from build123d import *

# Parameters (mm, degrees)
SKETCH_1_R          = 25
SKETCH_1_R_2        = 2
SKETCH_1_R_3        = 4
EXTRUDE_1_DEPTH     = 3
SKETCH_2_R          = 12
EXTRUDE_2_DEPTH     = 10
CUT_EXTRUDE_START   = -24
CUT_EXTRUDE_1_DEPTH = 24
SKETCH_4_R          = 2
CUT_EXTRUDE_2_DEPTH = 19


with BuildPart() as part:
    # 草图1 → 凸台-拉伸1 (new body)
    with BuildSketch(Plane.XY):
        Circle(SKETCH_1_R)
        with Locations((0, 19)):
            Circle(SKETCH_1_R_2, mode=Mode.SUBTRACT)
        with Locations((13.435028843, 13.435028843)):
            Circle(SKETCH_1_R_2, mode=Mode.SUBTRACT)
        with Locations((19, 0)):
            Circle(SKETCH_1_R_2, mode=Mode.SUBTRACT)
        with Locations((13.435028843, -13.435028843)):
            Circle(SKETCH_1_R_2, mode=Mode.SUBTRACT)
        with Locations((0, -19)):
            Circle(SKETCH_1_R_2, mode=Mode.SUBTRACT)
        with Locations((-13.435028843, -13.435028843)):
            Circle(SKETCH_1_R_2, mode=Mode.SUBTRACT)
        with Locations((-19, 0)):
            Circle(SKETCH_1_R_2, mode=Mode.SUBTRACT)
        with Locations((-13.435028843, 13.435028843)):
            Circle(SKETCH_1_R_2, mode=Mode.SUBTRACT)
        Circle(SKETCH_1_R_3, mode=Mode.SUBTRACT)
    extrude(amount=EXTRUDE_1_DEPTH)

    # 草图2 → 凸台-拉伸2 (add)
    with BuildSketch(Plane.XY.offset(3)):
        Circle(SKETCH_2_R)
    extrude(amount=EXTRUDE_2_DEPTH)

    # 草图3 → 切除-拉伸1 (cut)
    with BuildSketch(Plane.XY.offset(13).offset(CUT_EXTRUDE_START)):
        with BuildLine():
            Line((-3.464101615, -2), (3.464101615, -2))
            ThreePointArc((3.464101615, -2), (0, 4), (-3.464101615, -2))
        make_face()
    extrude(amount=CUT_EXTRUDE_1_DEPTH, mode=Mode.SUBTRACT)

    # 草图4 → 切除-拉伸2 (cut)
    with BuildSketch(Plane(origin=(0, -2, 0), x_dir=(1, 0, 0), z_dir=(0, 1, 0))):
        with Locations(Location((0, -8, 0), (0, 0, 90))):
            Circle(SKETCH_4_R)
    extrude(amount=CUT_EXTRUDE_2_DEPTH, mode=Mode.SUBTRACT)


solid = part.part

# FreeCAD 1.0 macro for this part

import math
import FreeCAD as App
import Part
import Sketcher

V = App.Vector

doc = App.newDocument("Part")
body = doc.addObject("PartDesign::Body", "Body")

sketch1 = body.newObject("Sketcher::SketchObject", "Sketch")
sketch1.AttachmentSupport = (doc.getObject("XY_Plane"), [""])
sketch1.MapMode = "FlatFace"
sketch1.addGeometry([
    Part.Circle(V(0, 0, 0), V(0, 0, 1), 25),
    Part.Circle(V(-13.4, -13.4, 0), V(0, 0, 1), 2),
    Part.Circle(V(0, -19, 0), V(0, 0, 1), 2),
    Part.Circle(V(13.4, -13.4, 0), V(0, 0, 1), 2),
    Part.Circle(V(-19, 0, 0), V(0, 0, 1), 2),
    Part.Circle(V(-13.4, 13.4, 0), V(0, 0, 1), 2),
    Part.Circle(V(0, 0, 0), V(0, 0, 1), 4),
    Part.Circle(V(19, 0, 0), V(0, 0, 1), 2),
    Part.Circle(V(0, 19, 0), V(0, 0, 1), 2),
    Part.Circle(V(13.4, 13.4, 0), V(0, 0, 1), 2),
], False)
sketch1.addConstraint([
    Sketcher.Constraint("Coincident", 0, 3, -1, 1),
    Sketcher.Constraint("Coincident", 6, 3, -1, 1),
    Sketcher.Constraint("Equal", 1, 2),
    Sketcher.Constraint("Equal", 2, 3),
    Sketcher.Constraint("Equal", 3, 4),
    Sketcher.Constraint("Equal", 4, 5),
    Sketcher.Constraint("Equal", 5, 7),
    Sketcher.Constraint("Equal", 7, 8),
    Sketcher.Constraint("Equal", 8, 9),
    Sketcher.Constraint("Symmetric", 3, 3, 5, 3, -1, 1),
    Sketcher.Constraint("Symmetric", 4, 3, 7, 3, -1, 1),
    Sketcher.Constraint("Symmetric", 2, 3, 8, 3, -1, 1),
    Sketcher.Constraint("Symmetric", 1, 3, 9, 3, -1, 1),
    Sketcher.Constraint("Symmetric", 1, 3, 3, 3, -2),
    Sketcher.Constraint("PointOnObject", 2, 3, -2),
    Sketcher.Constraint("PointOnObject", 4, 3, -1),
    Sketcher.Constraint("Diameter", 0, 50.0),
    Sketcher.Constraint("Diameter", 1, 4.0),
    Sketcher.Constraint("Diameter", 6, 8.0),
    Sketcher.Constraint("DistanceY", 2, 3, -1, 1, 19.0),
    Sketcher.Constraint("DistanceX", 4, 3, -1, 1, 19.0),
    Sketcher.Constraint("DistanceX", 1, 3, -1, 1, 13.435029),
    Sketcher.Constraint("DistanceY", 1, 3, -1, 1, 13.435029),
])
pad1 = body.newObject("PartDesign::Pad", "Pad")
pad1.Profile = sketch1
pad1.Length = 3

sketch2 = body.newObject("Sketcher::SketchObject", "Sketch001")
sketch2.AttachmentSupport = (doc.getObject("XY_Plane"), [""])
sketch2.MapMode = "FlatFace"
sketch2.AttachmentOffset = App.Placement(V(0, 0, 3), App.Rotation())
sketch2.addGeometry(Part.Circle(V(0, 0, 0), V(0, 0, 1), 12), False)
sketch2.addConstraint([
    Sketcher.Constraint("Coincident", 0, 3, -1, 1),
    Sketcher.Constraint("Diameter", 0, 24.0),
])
pad2 = body.newObject("PartDesign::Pad", "Pad001")
pad2.Profile = sketch2
pad2.Length = 10

sketch3 = body.newObject("Sketcher::SketchObject", "Sketch002")
sketch3.AttachmentSupport = (doc.getObject("XY_Plane"), [""])
sketch3.MapMode = "FlatFace"
sketch3.AttachmentOffset = App.Placement(V(0, 0, -11), App.Rotation())
sketch3.addGeometry([
    Part.LineSegment(V(-3.5, -2, 0), V(3.5, -2, 0)),
    Part.ArcOfCircle(Part.Circle(V(0, 0, 0), V(0, 0, 1), 4), math.radians(-30), math.radians(210)),
], False)
sketch3.addConstraint([
    Sketcher.Constraint("Coincident", 0, 1, 1, 2),
    Sketcher.Constraint("Coincident", 1, 1, 0, 2),
    Sketcher.Constraint("Horizontal", 0),
    Sketcher.Constraint("Coincident", 1, 3, -1, 1),
    Sketcher.Constraint("Radius", 1, 4.0),
    Sketcher.Constraint("DistanceY", 0, 1, -1, 1, 2.0),
])
pocket1 = body.newObject("PartDesign::Pocket", "Pocket")
pocket1.Profile = sketch3
pocket1.Length = 24
pocket1.Reversed = True

sketch4 = body.newObject("Sketcher::SketchObject", "Sketch003")
sketch4.AttachmentSupport = (doc.getObject("XZ_Plane"), [""])
sketch4.MapMode = "FlatFace"
sketch4.AttachmentOffset = App.Placement(V(0, 0, 2), App.Rotation())
sketch4.addGeometry(Part.Circle(V(0, 8, 0), V(0, 0, 1), 2), False)
sketch4.addConstraint([
    Sketcher.Constraint("PointOnObject", 0, 3, -2),
    Sketcher.Constraint("Diameter", 0, 4.0),
    Sketcher.Constraint("DistanceY", -1, 1, 0, 3, 8.0),
])
pocket2 = body.newObject("PartDesign::Pocket", "Pocket001")
pocket2.Profile = sketch4
pocket2.Length = 19

doc.recompute()
